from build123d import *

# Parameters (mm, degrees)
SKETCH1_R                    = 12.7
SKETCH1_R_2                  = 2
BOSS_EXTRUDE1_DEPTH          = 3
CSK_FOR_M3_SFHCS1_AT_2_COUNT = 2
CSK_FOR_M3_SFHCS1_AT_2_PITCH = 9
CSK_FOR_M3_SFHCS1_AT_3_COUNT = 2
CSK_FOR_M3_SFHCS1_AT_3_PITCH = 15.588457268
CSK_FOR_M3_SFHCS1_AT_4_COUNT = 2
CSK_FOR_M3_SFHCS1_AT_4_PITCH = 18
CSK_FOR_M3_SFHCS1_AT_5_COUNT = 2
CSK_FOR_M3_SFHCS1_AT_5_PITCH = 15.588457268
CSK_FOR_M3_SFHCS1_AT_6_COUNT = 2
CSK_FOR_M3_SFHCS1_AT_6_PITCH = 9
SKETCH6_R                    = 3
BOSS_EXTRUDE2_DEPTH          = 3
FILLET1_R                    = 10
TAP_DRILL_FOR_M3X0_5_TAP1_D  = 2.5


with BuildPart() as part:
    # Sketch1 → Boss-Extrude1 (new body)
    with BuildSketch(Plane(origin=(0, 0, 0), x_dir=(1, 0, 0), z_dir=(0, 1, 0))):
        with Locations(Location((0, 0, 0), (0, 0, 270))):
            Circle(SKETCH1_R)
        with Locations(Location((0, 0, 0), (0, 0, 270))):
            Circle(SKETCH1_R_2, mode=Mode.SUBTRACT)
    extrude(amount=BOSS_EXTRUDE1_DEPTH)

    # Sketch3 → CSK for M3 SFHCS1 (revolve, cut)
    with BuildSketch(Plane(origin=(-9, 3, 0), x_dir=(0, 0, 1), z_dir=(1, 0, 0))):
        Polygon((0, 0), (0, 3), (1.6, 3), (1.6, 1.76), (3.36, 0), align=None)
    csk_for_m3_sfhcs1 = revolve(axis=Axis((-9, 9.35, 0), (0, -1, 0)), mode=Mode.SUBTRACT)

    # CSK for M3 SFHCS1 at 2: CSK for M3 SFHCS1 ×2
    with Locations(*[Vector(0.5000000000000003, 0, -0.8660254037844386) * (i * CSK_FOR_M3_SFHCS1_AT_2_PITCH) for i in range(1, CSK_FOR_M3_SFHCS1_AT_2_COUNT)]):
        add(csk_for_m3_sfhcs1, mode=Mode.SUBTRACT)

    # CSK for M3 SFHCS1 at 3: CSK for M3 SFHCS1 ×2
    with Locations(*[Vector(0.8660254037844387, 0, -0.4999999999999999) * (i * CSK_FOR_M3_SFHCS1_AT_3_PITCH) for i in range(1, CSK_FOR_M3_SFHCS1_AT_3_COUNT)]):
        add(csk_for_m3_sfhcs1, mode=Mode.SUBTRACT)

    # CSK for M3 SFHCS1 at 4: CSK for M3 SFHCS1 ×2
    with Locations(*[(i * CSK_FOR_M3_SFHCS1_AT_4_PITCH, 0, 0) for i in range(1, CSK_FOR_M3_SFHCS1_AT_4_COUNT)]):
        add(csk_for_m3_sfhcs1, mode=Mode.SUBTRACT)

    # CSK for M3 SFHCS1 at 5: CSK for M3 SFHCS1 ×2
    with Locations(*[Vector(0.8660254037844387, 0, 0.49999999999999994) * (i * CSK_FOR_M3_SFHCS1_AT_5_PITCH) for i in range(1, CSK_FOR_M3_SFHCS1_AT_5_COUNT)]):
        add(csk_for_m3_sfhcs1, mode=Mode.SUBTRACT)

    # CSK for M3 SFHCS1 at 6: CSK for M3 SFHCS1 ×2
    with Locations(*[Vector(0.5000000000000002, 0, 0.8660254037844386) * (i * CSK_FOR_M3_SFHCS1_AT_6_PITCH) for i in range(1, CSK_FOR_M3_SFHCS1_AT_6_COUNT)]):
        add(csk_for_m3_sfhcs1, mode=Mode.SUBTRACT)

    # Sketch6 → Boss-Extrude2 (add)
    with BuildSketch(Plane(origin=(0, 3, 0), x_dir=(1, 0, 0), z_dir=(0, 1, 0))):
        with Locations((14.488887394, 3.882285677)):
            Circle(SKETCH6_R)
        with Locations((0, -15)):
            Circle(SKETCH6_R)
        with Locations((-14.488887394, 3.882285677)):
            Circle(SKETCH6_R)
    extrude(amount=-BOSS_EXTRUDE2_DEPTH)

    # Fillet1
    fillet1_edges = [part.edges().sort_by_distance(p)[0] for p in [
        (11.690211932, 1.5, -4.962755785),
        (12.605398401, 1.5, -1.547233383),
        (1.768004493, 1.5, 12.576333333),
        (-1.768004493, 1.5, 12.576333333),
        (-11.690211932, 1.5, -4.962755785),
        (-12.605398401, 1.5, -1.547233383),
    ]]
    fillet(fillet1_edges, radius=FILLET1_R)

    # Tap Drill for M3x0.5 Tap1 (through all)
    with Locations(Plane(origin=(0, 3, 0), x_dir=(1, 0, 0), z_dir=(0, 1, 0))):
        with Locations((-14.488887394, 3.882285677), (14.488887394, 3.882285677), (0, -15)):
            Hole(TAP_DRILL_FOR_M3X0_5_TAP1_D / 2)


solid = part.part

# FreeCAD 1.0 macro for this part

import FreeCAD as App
import Part
import Sketcher
Q = App.Units.Quantity


def edges_at(feature, points):
    """Names of the edges that pass closest to the given points."""
    edges = feature.Shape.Edges
    near = lambda p: min(range(len(edges)), key=lambda i: edges[i].distToShape(Part.Vertex(*p))[0])
    return sorted({f"Edge{near(p) + 1}" for p in points})

doc = App.newDocument("Part")
body = doc.addObject("PartDesign::Body", "Body")

# Sketch on XZ plane
sketch1 = body.newObject("Sketcher::SketchObject", "Sketch")
sketch1.AttachmentSupport = (doc.getObject("XZ_Plane"), [""])
sketch1.MapMode = "FlatFace"
sketch1.addGeometry([
    Part.Circle(App.Vector(0, 0, 0), App.Vector(0, 0, 1), 12.7),
    Part.Circle(App.Vector(0, 0, 0), App.Vector(0, 0, 1), 2),
], False)
sketch1.addConstraint([
    Sketcher.Constraint("Coincident", 0, 3, -1, 1),
    Sketcher.Constraint("Coincident", 1, 3, -1, 1),
    Sketcher.Constraint("Diameter", 1, 4.0),
    Sketcher.Constraint("Diameter", 0, 25.4),
])
pad1 = body.newObject("PartDesign::Pad", "Pad")
pad1.Profile = sketch1
pad1.Length = 3
pad1.Reversed = True

# Sketch on YZ plane
sketch2 = body.newObject("Sketcher::SketchObject", "Sketch001")
sketch2.AttachmentSupport = (doc.getObject("YZ_Plane"), [""])
sketch2.MapMode = "FlatFace"
sketch2.AttachmentOffset = App.Placement(App.Vector(0, 0, -9), App.Rotation())
sketch2.addGeometry([
    Part.LineSegment(App.Vector(0, 0, 0), App.Vector(3, 0, 0)),  # 0
    Part.LineSegment(App.Vector(3, 0, 0), App.Vector(3, 3.36, 0)),  # 1
    Part.LineSegment(App.Vector(3, 3.36, 0), App.Vector(1.24, 1.6, 0)),  # 2
    Part.LineSegment(App.Vector(1.24, 1.6, 0), App.Vector(0, 1.6, 0)),  # 3
    Part.LineSegment(App.Vector(0, 1.6, 0), App.Vector(0, 0, 0)),  # 4
], False)
sketch2.addConstraint([
    Sketcher.Constraint("Coincident", 0, 2, 1, 1),
    Sketcher.Constraint("Coincident", 1, 2, 2, 1),
    Sketcher.Constraint("Coincident", 2, 2, 3, 1),
    Sketcher.Constraint("Coincident", 3, 2, 4, 1),
    Sketcher.Constraint("Coincident", 4, 2, 0, 1),
    Sketcher.Constraint("Horizontal", 0),
    Sketcher.Constraint("Vertical", 1),
    Sketcher.Constraint("Horizontal", 3),
    Sketcher.Constraint("Vertical", 4),
    Sketcher.Constraint("Coincident", 4, 2, -1, 1),
    Sketcher.Constraint("DistanceX", 0, 1, 0, 2, 3.0),
    Sketcher.Constraint("Angle", 2, Q("-135 deg")),
    Sketcher.Constraint("DistanceY", 4, 2, 4, 1, 1.6),
    Sketcher.Constraint("DistanceX", 3, 2, 3, 1, 1.24),
])
groove = body.newObject("PartDesign::Groove", "Groove")
groove.Profile = sketch2
groove.ReferenceAxis = (sketch2, ["H_Axis"])
groove.Angle = 360
doc.recompute()

datumline = body.newObject("PartDesign::Line", "DatumLine")
datumline.Placement = App.Placement(App.Vector(0, 0, 0), App.Rotation(App.Vector(0, 0, 1), App.Vector(0.5, 0, -0.866025404)))
linearpattern = body.newObject("PartDesign::LinearPattern", "LinearPattern")
linearpattern.Originals = [groove]
linearpattern.Direction = (datumline, [""])
linearpattern.Mode = "offset"
linearpattern.Offset = 9
linearpattern.Occurrences = 2
body.Tip = linearpattern
doc.recompute()

datumline2 = body.newObject("PartDesign::Line", "DatumLine001")
datumline2.Placement = App.Placement(App.Vector(0, 0, 0), App.Rotation(App.Vector(0, 0, 1), App.Vector(0.866025404, 0, -0.5)))
linearpattern2 = body.newObject("PartDesign::LinearPattern", "LinearPattern001")
linearpattern2.Originals = [groove]
linearpattern2.Direction = (datumline2, [""])
linearpattern2.Mode = "offset"
linearpattern2.Offset = 15.588457
linearpattern2.Occurrences = 2
body.Tip = linearpattern2
doc.recompute()

linearpattern3 = body.newObject("PartDesign::LinearPattern", "LinearPattern002")
linearpattern3.Originals = [groove]
linearpattern3.Direction = (doc.getObject("X_Axis"), [""])
linearpattern3.Mode = "offset"
linearpattern3.Offset = 18
linearpattern3.Occurrences = 2
body.Tip = linearpattern3
doc.recompute()

datumline3 = body.newObject("PartDesign::Line", "DatumLine002")
datumline3.Placement = App.Placement(App.Vector(0, 0, 0), App.Rotation(App.Vector(0, 0, 1), App.Vector(0.866025404, 0, 0.5)))
linearpattern4 = body.newObject("PartDesign::LinearPattern", "LinearPattern003")
linearpattern4.Originals = [groove]
linearpattern4.Direction = (datumline3, [""])
linearpattern4.Mode = "offset"
linearpattern4.Offset = 15.588457
linearpattern4.Occurrences = 2
body.Tip = linearpattern4
doc.recompute()

datumline4 = body.newObject("PartDesign::Line", "DatumLine003")
datumline4.Placement = App.Placement(App.Vector(0, 0, 0), App.Rotation(App.Vector(0, 0, 1), App.Vector(0.5, 0, 0.866025404)))
linearpattern5 = body.newObject("PartDesign::LinearPattern", "LinearPattern004")
linearpattern5.Originals = [groove]
linearpattern5.Direction = (datumline4, [""])
linearpattern5.Mode = "offset"
linearpattern5.Offset = 9
linearpattern5.Occurrences = 2
body.Tip = linearpattern5

# Sketch on XZ plane
sketch3 = body.newObject("Sketcher::SketchObject", "Sketch002")
sketch3.AttachmentSupport = (doc.getObject("XZ_Plane"), [""])
sketch3.MapMode = "FlatFace"
sketch3.AttachmentOffset = App.Placement(App.Vector(0, 0, -3), App.Rotation())
sketch3.addGeometry([
    Part.Circle(App.Vector(14.488887, -3.882286, 0), App.Vector(0, 0, 1), 3),
    Part.Circle(App.Vector(0, 15, 0), App.Vector(0, 0, 1), 3),
    Part.Circle(App.Vector(-14.488887, -3.882286, 0), App.Vector(0, 0, 1), 3),
], False)
sketch3.addConstraint([
    Sketcher.Constraint("Equal", 0, 1),
    Sketcher.Constraint("Equal", 1, 2),
    Sketcher.Constraint("Symmetric", 0, 3, 2, 3, -2),
    Sketcher.Constraint("PointOnObject", 1, 3, -2),
    Sketcher.Constraint("Diameter", 0, 6.0),
    Sketcher.Constraint("DistanceY", -1, 1, 1, 3, 15.0),
    Sketcher.Constraint("DistanceX", -1, 1, 0, 3, 14.488887),
    Sketcher.Constraint("DistanceY", 0, 3, -1, 1, 3.882286),
])
pad2 = body.newObject("PartDesign::Pad", "Pad001")
pad2.Profile = sketch3
pad2.Length = 3
doc.recompute()

fillet = body.newObject("PartDesign::Fillet", "Fillet")
fillet.Base = (pad2, edges_at(pad2, [
    (11.69, 1.5, -4.963),
    (12.605, 1.5, -1.547),
    (1.768, 1.5, 12.576),
    (-1.768, 1.5, 12.576),
    (-11.69, 1.5, -4.963),
    (-12.605, 1.5, -1.547),
]))
fillet.Radius = 10

# Sketch on XZ plane
sketch4 = body.newObject("Sketcher::SketchObject", "Sketch003")
sketch4.AttachmentSupport = (doc.getObject("XZ_Plane"), [""])
sketch4.MapMode = "FlatFace"
sketch4.AttachmentOffset = App.Placement(App.Vector(0, 0, -3), App.Rotation())
sketch4.addGeometry([
    Part.Circle(App.Vector(-14.488887, -3.882286, 0), App.Vector(0, 0, 1), 1.25),
    Part.Circle(App.Vector(14.488887, -3.882286, 0), App.Vector(0, 0, 1), 1.25),
    Part.Circle(App.Vector(0, 15, 0), App.Vector(0, 0, 1), 1.25),
], False)
sketch4.addConstraint([
    Sketcher.Constraint("Equal", 0, 1),
    Sketcher.Constraint("Equal", 1, 2),
    Sketcher.Constraint("Symmetric", 0, 3, 1, 3, -2),
    Sketcher.Constraint("PointOnObject", 2, 3, -2),
    Sketcher.Constraint("Diameter", 0, 2.5),
    Sketcher.Constraint("DistanceY", -1, 1, 2, 3, 15.0),
    Sketcher.Constraint("DistanceX", 0, 3, -1, 1, 14.488887),
    Sketcher.Constraint("DistanceY", 0, 3, -1, 1, 3.882286),
])
doc.recompute()
hole = body.newObject("PartDesign::Hole", "Hole")
hole.Profile = sketch4
hole.ThreadType = "None"
hole.Diameter = 2.5
hole.DepthType = "ThroughAll"
hole.Reversed = True

doc.recompute()
